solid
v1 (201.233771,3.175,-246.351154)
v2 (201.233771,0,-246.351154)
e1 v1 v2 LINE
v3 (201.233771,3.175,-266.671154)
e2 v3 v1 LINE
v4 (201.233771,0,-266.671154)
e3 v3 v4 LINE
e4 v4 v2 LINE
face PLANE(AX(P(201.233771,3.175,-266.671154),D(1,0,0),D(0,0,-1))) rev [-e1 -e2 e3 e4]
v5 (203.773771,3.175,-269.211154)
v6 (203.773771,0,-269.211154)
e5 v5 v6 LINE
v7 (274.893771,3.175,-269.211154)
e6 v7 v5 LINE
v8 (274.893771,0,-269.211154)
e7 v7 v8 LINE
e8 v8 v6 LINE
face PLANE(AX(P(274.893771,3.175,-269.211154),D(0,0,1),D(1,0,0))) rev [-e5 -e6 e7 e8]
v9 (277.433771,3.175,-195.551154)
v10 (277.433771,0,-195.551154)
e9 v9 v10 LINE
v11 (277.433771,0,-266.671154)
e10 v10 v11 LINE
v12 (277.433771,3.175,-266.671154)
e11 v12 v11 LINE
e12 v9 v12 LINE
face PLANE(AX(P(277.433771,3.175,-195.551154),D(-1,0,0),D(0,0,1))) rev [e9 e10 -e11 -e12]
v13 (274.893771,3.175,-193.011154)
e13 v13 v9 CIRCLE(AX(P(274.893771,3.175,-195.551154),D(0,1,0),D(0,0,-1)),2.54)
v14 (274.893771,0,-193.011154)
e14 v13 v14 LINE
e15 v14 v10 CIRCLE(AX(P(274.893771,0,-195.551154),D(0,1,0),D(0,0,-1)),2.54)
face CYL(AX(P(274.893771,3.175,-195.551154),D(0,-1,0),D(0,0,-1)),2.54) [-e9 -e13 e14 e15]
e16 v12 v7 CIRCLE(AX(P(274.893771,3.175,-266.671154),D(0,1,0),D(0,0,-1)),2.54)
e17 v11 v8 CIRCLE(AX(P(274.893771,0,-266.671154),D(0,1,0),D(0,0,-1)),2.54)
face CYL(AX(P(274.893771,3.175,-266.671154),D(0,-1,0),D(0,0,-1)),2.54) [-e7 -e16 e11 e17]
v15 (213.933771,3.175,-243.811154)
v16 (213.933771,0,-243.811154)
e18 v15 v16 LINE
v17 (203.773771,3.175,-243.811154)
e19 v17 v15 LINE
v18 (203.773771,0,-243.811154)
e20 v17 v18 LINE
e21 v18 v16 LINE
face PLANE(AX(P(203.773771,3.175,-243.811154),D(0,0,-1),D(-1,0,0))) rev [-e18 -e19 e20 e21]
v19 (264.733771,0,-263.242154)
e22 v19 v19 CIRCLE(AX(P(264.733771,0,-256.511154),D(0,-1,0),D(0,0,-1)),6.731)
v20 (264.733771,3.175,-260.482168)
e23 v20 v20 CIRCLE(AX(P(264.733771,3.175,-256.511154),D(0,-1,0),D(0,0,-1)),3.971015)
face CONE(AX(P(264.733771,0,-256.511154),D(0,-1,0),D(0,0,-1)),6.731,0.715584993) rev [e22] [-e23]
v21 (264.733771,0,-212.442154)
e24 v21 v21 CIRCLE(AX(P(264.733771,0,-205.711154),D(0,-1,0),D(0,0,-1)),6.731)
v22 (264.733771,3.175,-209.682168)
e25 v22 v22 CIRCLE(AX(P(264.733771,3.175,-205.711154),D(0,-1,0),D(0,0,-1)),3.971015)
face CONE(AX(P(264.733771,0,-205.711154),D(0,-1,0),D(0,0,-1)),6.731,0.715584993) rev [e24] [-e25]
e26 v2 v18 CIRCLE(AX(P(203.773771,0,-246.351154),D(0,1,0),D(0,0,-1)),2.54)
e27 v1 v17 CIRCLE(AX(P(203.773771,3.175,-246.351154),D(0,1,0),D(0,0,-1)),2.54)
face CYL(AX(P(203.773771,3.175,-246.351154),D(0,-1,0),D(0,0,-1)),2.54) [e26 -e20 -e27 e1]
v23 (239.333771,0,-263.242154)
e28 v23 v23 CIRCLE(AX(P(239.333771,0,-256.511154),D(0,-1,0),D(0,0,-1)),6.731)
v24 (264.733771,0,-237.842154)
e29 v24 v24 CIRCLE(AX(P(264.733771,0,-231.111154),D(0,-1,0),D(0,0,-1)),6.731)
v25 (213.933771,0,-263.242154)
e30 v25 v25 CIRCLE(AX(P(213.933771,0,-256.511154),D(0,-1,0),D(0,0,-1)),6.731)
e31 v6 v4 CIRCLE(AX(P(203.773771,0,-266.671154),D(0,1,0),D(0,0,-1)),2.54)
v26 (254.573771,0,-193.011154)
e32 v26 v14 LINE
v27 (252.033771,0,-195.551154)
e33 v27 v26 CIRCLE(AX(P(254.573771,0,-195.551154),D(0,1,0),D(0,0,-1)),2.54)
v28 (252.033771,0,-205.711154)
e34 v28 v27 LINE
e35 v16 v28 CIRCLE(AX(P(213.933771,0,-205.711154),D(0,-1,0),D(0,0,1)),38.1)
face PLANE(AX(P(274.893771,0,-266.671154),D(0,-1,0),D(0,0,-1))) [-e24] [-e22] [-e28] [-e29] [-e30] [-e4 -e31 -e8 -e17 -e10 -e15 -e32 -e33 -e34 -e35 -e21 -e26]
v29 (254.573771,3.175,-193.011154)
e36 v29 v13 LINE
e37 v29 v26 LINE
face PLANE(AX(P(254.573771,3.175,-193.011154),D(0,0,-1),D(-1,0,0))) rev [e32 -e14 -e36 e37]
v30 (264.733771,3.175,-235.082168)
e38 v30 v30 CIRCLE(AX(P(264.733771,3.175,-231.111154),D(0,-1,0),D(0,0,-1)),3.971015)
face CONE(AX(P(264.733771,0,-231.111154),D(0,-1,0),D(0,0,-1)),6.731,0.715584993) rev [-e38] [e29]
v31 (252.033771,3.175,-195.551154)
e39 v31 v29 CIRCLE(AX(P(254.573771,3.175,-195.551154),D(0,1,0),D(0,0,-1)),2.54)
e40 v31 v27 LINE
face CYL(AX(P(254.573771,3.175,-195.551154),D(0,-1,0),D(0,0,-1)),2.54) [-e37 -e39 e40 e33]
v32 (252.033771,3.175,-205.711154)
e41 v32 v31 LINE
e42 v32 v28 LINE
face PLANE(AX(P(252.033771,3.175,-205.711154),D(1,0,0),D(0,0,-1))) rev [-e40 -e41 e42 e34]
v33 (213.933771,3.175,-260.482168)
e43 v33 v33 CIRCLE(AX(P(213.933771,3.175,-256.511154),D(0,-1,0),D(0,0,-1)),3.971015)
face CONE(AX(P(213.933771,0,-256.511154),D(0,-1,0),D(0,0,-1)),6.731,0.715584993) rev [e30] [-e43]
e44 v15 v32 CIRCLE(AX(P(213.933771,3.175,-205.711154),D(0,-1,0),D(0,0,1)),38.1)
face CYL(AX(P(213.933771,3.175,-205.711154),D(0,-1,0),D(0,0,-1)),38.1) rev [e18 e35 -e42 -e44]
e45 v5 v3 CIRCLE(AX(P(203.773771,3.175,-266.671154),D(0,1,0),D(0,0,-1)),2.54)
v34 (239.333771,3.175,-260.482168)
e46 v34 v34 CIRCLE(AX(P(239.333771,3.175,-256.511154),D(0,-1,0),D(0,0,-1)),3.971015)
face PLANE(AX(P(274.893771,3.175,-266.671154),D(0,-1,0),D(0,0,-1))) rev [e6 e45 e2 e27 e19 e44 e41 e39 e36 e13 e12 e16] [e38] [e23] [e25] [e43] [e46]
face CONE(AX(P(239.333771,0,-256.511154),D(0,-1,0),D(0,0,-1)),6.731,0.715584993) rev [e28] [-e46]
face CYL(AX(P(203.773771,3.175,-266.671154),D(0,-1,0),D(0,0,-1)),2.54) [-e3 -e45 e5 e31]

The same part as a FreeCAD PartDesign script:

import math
import FreeCAD as App
import Part
import Sketcher
Q = App.Units.Quantity

doc = App.newDocument("Part")
body = doc.addObject("PartDesign::Body", "Body")

# Sketch on XZ plane
sketch1 = body.newObject("Sketcher::SketchObject", "Sketch")
sketch1.AttachmentSupport = (doc.getObject("XZ_Plane"), [""])
sketch1.MapMode = "FlatFace"
sketch1.addGeometry([
    Part.LineSegment(App.Vector(274.893771, -269.211154, 0), App.Vector(203.773771, -269.211154, 0)),  # 0
    Part.ArcOfCircle(Part.Circle(App.Vector(203.773771, -266.671154, 0), App.Vector(0, 0, 1), 2.54), math.radians(180), math.radians(270)),  # 1
    Part.LineSegment(App.Vector(201.233771, -266.671154, 0), App.Vector(201.233771, -246.351154, 0)),  # 2
    Part.ArcOfCircle(Part.Circle(App.Vector(203.773771, -246.351154, 0), App.Vector(0, 0, 1), 2.54), math.radians(90), math.radians(180)),  # 3
    Part.LineSegment(App.Vector(203.773771, -243.811154, 0), App.Vector(213.933771, -243.811154, 0)),  # 4
    Part.ArcOfCircle(Part.Circle(App.Vector(213.933771, -205.711154, 0), App.Vector(0, 0, 1), 38.1), math.radians(-90), math.radians(0)),  # 5
    Part.LineSegment(App.Vector(252.033771, -205.711154, 0), App.Vector(252.033771, -195.551154, 0)),  # 6
    Part.ArcOfCircle(Part.Circle(App.Vector(254.573771, -195.551154, 0), App.Vector(0, 0, 1), 2.54), math.radians(90), math.radians(180)),  # 7
    Part.LineSegment(App.Vector(254.573771, -193.011154, 0), App.Vector(274.893771, -193.011154, 0)),  # 8
    Part.ArcOfCircle(Part.Circle(App.Vector(274.893771, -195.551154, 0), App.Vector(0, 0, 1), 2.54), math.radians(0), math.radians(90)),  # 9
    Part.LineSegment(App.Vector(277.433771, -195.551154, 0), App.Vector(277.433771, -266.671154, 0)),  # 10
    Part.ArcOfCircle(Part.Circle(App.Vector(274.893771, -266.671154, 0), App.Vector(0, 0, 1), 2.54), math.radians(-90), math.radians(0)),  # 11
], False)
sketch1.addConstraint([
    Sketcher.Constraint("Tangent", 0, 2, 1, 2),
    Sketcher.Constraint("Tangent", 1, 1, 2, 1),
    Sketcher.Constraint("Tangent", 2, 2, 3, 2),
    Sketcher.Constraint("Tangent", 3, 1, 4, 1),
    Sketcher.Constraint("Tangent", 4, 2, 5, 1),
    Sketcher.Constraint("Tangent", 5, 2, 6, 1),
    Sketcher.Constraint("Tangent", 6, 2, 7, 2),
    Sketcher.Constraint("Tangent", 7, 1, 8, 1),
    Sketcher.Constraint("Tangent", 8, 2, 9, 2),
    Sketcher.Constraint("Tangent", 9, 1, 10, 1),
    Sketcher.Constraint("Tangent", 10, 2, 11, 2),
    Sketcher.Constraint("Tangent", 11, 1, 0, 1),
    Sketcher.Constraint("Horizontal", 0),
    Sketcher.Constraint("Vertical", 2),
    Sketcher.Constraint("Horizontal", 4),
    Sketcher.Constraint("Vertical", 6),
    Sketcher.Constraint("Horizontal", 8),
    Sketcher.Constraint("Vertical", 10),
    Sketcher.Constraint("Equal", 1, 3),
    Sketcher.Constraint("Equal", 3, 7),
    Sketcher.Constraint("Equal", 7, 9),
    Sketcher.Constraint("Equal", 9, 11),
    Sketcher.Constraint("Equal", 8, 2),
    Sketcher.Constraint("Equal", 4, 6),
    Sketcher.Constraint("Radius", 1, Q("0.1 in")),
    Sketcher.Constraint("Radius", 5, Q("1.5 in")),
    Sketcher.Constraint("DistanceX", 0, 2, 0, 1, Q("2.8 in")),
    Sketcher.Constraint("DistanceX", 4, 1, 4, 2, Q("0.4 in")),
    Sketcher.Constraint("DistanceX", -1, 1, 1, 3, Q("203.773771 mm")),
    Sketcher.Constraint("DistanceY", 1, 3, -1, 1, Q("266.671154 mm")),
])
pad1 = body.newObject("PartDesign::Pad", "Pad")
pad1.Profile = sketch1
pad1.Length = Q("0.125 in")
pad1.Reversed = True

# Sketch on YZ plane
sketch2 = body.newObject("Sketcher::SketchObject", "Sketch001")
sketch2.AttachmentSupport = (doc.getObject("YZ_Plane"), [""])
sketch2.MapMode = "FlatFace"
sketch2.AttachmentOffset = App.Placement(App.Vector(0, 0, 264.733771), App.Rotation())
sketch2.addGeometry([
    Part.LineSegment(App.Vector(3.175, -205.711154, 0), App.Vector(0, -205.711154, 0)),  # 0
    Part.LineSegment(App.Vector(0, -205.711154, 0), App.Vector(0, -212.442154, 0)),  # 1
    Part.LineSegment(App.Vector(0, -212.442154, 0), App.Vector(4.09071, -208.886154, 0)),  # 2
    Part.LineSegment(App.Vector(4.09071, -208.886154, 0), App.Vector(3.175, -208.886154, 0)),  # 3
    Part.LineSegment(App.Vector(3.175, -208.886154, 0), App.Vector(3.175, -205.711154, 0)),  # 4
], False)
sketch2.addGeometry(Part.LineSegment(App.Vector(0, -205.711154, 0), App.Vector(4.09071, -205.711154, 0)), True)  # axis
sketch2.addConstraint([
    Sketcher.Constraint("Coincident", 0, 2, 1, 1),
    Sketcher.Constraint("Coincident", 1, 2, 2, 1),
    Sketcher.Constraint("Coincident", 2, 2, 3, 1),
    Sketcher.Constraint("Coincident", 3, 2, 4, 1),
    Sketcher.Constraint("Coincident", 4, 2, 0, 1),
    Sketcher.Constraint("Horizontal", 0),
    Sketcher.Constraint("Vertical", 1),
    Sketcher.Constraint("Horizontal", 3),
    Sketcher.Constraint("Vertical", 4),
    Sketcher.Constraint("Horizontal", 5),
    Sketcher.Constraint("Coincident", 5, 1, 0, 2),
    Sketcher.Constraint("PointOnObject", 0, 2, -2),
    Sketcher.Constraint("Vertical", 2, 2, 5, 2),
    Sketcher.Constraint("Equal", 0, 4),
    Sketcher.Constraint("Angle", 2, Q("41 deg")),
    Sketcher.Constraint("DistanceX", 0, 2, 0, 1, Q("0.125 in")),
    Sketcher.Constraint("DistanceY", 1, 2, 1, 1, Q("0.265 in")),
    Sketcher.Constraint("DistanceY", 0, 2, -1, 1, Q("205.711154 mm")),
])
groove = body.newObject("PartDesign::Groove", "Groove")
groove.Profile = sketch2
groove.ReferenceAxis = (sketch2, ["Axis0"])
groove.Angle = 360
doc.recompute()

linearpattern = body.newObject("PartDesign::LinearPattern", "LinearPattern")
linearpattern.Originals = [groove]
linearpattern.Direction = (doc.getObject("Z_Axis"), [""])
linearpattern.Mode = "offset"
linearpattern.Offset = Q("1 in")
linearpattern.Occurrences = 2
linearpattern.Reversed = True
body.Tip = linearpattern
doc.recompute()

linearpattern2 = body.newObject("PartDesign::LinearPattern", "LinearPattern001")
linearpattern2.Originals = [groove]
linearpattern2.Direction = (doc.getObject("Z_Axis"), [""])
linearpattern2.Mode = "offset"
linearpattern2.Offset = Q("2 in")
linearpattern2.Occurrences = 2
linearpattern2.Reversed = True
body.Tip = linearpattern2
doc.recompute()

datumline = body.newObject("PartDesign::Line", "DatumLine")
datumline.Placement = App.Placement(App.Vector(0, 0, 0), App.Rotation(App.Vector(0, 0, 1), App.Vector(-0.447213595, 0, -0.894427191)))
linearpattern3 = body.newObject("PartDesign::LinearPattern", "LinearPattern002")
linearpattern3.Originals = [groove]
linearpattern3.Direction = (datumline, [""])
linearpattern3.Mode = "offset"
linearpattern3.Offset = 56.796127
linearpattern3.Occurrences = 2
body.Tip = linearpattern3
doc.recompute()

datumline2 = body.newObject("PartDesign::Line", "DatumLine001")
datumline2.Placement = App.Placement(App.Vector(0, 0, 0), App.Rotation(App.Vector(0, 0, 1), App.Vector(-0.707106781, 0, -0.707106781)))
linearpattern4 = body.newObject("PartDesign::LinearPattern", "LinearPattern003")
linearpattern4.Originals = [groove]
linearpattern4.Direction = (datumline2, [""])
linearpattern4.Mode = "offset"
linearpattern4.Offset = 71.842049
linearpattern4.Occurrences = 2
body.Tip = linearpattern4

doc.recompute()
